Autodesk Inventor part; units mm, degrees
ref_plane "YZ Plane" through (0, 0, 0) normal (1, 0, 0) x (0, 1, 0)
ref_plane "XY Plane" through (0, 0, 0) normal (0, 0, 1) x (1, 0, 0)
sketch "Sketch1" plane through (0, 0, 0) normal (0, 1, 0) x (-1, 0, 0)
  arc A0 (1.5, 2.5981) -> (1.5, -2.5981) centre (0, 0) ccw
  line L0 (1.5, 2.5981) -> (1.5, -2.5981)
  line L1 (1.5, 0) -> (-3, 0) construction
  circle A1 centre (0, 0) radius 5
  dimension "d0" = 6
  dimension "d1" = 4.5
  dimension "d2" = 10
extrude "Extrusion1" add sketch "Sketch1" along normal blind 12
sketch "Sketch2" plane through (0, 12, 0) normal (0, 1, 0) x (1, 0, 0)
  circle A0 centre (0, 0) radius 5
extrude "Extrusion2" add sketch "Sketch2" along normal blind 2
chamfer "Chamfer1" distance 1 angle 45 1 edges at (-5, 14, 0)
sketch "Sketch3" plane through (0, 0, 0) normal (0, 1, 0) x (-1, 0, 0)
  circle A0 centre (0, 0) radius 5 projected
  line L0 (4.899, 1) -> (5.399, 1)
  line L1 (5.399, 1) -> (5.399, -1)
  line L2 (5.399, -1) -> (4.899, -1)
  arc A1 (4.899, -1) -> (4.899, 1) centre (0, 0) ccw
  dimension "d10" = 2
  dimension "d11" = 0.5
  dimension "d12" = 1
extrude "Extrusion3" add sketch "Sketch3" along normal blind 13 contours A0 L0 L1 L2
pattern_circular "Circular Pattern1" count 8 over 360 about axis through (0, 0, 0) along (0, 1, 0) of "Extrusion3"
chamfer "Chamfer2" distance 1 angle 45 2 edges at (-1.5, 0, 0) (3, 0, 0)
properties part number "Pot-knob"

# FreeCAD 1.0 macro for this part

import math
import FreeCAD as App
import Part
import Sketcher
from FreeCAD import Vector


def edges_at(feature, points):
    """Names of the edges that pass closest to the given points."""
    edges = feature.Shape.Edges
    near = lambda p: min(range(len(edges)), key=lambda i: edges[i].distToShape(Part.Vertex(*p))[0])
    return sorted({f"Edge{near(p) + 1}" for p in points})

doc = App.newDocument("Part")
body = doc.addObject("PartDesign::Body", "Body")

# Sketch on XZ plane
sketch1 = body.newObject("Sketcher::SketchObject", "Sketch")
sketch1.AttachmentSupport = (doc.getObject("XZ_Plane"), [""])
sketch1.MapMode = "FlatFace"
sketch1.addGeometry(Part.Circle(Vector(0, 0, 0), Vector(0, 0, 1), 5), False)
sketch1.addGeometry(Part.ArcOfCircle(Part.Circle(Vector(0, 0, 0), Vector(0, 0, 1), 3), math.radians(-120), math.radians(120)), False)
sketch1.addGeometry(Part.LineSegment(Vector(-1.5, 2.6, 0), Vector(-1.5, -2.6, 0)), False)
sketch1.addConstraint(Sketcher.Constraint("Coincident", 1, 1, 2, 2))
sketch1.addConstraint(Sketcher.Constraint("Coincident", 2, 1, 1, 2))
sketch1.addConstraint(Sketcher.Constraint("Vertical", 2))
sketch1.addConstraint(Sketcher.Constraint("Coincident", 0, 3, -1, 1))
sketch1.addConstraint(Sketcher.Constraint("Coincident", 1, 3, -1, 1))
sketch1.addConstraint(Sketcher.Constraint("Diameter", 0, 10.0))
sketch1.addConstraint(Sketcher.Constraint("Radius", 1, 3.0))
sketch1.addConstraint(Sketcher.Constraint("DistanceX", 1, 1, -1, 1, 1.5))
pad1 = body.newObject("PartDesign::Pad", "Pad")
pad1.Profile = sketch1
pad1.Length = 12
pad1.Reversed = True

# Sketch on XZ plane
sketch2 = body.newObject("Sketcher::SketchObject", "Sketch001")
sketch2.AttachmentSupport = (doc.getObject("XZ_Plane"), [""])
sketch2.MapMode = "FlatFace"
sketch2.AttachmentOffset = App.Placement(Vector(0, 0, -12), App.Rotation())
sketch2.addGeometry(Part.Circle(Vector(0, 0, 0), Vector(0, 0, 1), 5), False)
sketch2.addConstraint(Sketcher.Constraint("Coincident", 0, 3, -1, 1))
sketch2.addConstraint(Sketcher.Constraint("Diameter", 0, 10.0))
pad2 = body.newObject("PartDesign::Pad", "Pad001")
pad2.Profile = sketch2
pad2.Length = 2
pad2.Reversed = True
doc.recompute()

chamfer = body.newObject("PartDesign::Chamfer", "Chamfer")
chamfer.Base = (pad2, edges_at(pad2, [(-5, 14, 0)]))
chamfer.Size = 1

# Sketch on XZ plane
sketch3 = body.newObject("Sketcher::SketchObject", "Sketch002")
sketch3.AttachmentSupport = (doc.getObject("XZ_Plane"), [""])
sketch3.MapMode = "FlatFace"
sketch3.addGeometry(Part.ArcOfCircle(Part.Circle(Vector(0, 0, 0), Vector(0, 0, 1), 5), math.radians(168), math.radians(192)), False)
sketch3.addGeometry(Part.LineSegment(Vector(-4.9, -1, 0), Vector(-5.4, -1, 0)), False)
sketch3.addGeometry(Part.LineSegment(Vector(-5.4, -1, 0), Vector(-5.4, 1, 0)), False)
sketch3.addGeometry(Part.LineSegment(Vector(-5.4, 1, 0), Vector(-4.9, 1, 0)), False)
sketch3.addConstraint(Sketcher.Constraint("Coincident", 0, 2, 1, 1))
sketch3.addConstraint(Sketcher.Constraint("Coincident", 1, 2, 2, 1))
sketch3.addConstraint(Sketcher.Constraint("Coincident", 2, 2, 3, 1))
sketch3.addConstraint(Sketcher.Constraint("Coincident", 3, 2, 0, 1))
sketch3.addConstraint(Sketcher.Constraint("Horizontal", 1))
sketch3.addConstraint(Sketcher.Constraint("Vertical", 2))
sketch3.addConstraint(Sketcher.Constraint("Horizontal", 3))
sketch3.addConstraint(Sketcher.Constraint("Coincident", 0, 3, -1, 1))
sketch3.addConstraint(Sketcher.Constraint("Vertical", 0, 2, 3, 2))
sketch3.addConstraint(Sketcher.Constraint("DistanceY", 2, 1, 2, 2, 2.0))
sketch3.addConstraint(Sketcher.Constraint("DistanceX", 1, 2, 1, 1, 0.5))
sketch3.addConstraint(Sketcher.Constraint("Radius", 0, 5.0))
pad3 = body.newObject("PartDesign::Pad", "Pad002")
pad3.Profile = sketch3
pad3.Length = 13
pad3.Reversed = True
doc.recompute()

polarpattern = body.newObject("PartDesign::PolarPattern", "PolarPattern")
polarpattern.Originals = [pad3]
polarpattern.Axis = (doc.getObject("Y_Axis"), [""])
polarpattern.Angle = 360
polarpattern.Occurrences = 8
body.Tip = polarpattern
doc.recompute()

chamfer2 = body.newObject("PartDesign::Chamfer", "Chamfer001")
chamfer2.Base = (polarpattern, edges_at(polarpattern, [(-1.5, 0, 0), (3, 0, 0)]))
chamfer2.Size = 1

doc.recompute()
